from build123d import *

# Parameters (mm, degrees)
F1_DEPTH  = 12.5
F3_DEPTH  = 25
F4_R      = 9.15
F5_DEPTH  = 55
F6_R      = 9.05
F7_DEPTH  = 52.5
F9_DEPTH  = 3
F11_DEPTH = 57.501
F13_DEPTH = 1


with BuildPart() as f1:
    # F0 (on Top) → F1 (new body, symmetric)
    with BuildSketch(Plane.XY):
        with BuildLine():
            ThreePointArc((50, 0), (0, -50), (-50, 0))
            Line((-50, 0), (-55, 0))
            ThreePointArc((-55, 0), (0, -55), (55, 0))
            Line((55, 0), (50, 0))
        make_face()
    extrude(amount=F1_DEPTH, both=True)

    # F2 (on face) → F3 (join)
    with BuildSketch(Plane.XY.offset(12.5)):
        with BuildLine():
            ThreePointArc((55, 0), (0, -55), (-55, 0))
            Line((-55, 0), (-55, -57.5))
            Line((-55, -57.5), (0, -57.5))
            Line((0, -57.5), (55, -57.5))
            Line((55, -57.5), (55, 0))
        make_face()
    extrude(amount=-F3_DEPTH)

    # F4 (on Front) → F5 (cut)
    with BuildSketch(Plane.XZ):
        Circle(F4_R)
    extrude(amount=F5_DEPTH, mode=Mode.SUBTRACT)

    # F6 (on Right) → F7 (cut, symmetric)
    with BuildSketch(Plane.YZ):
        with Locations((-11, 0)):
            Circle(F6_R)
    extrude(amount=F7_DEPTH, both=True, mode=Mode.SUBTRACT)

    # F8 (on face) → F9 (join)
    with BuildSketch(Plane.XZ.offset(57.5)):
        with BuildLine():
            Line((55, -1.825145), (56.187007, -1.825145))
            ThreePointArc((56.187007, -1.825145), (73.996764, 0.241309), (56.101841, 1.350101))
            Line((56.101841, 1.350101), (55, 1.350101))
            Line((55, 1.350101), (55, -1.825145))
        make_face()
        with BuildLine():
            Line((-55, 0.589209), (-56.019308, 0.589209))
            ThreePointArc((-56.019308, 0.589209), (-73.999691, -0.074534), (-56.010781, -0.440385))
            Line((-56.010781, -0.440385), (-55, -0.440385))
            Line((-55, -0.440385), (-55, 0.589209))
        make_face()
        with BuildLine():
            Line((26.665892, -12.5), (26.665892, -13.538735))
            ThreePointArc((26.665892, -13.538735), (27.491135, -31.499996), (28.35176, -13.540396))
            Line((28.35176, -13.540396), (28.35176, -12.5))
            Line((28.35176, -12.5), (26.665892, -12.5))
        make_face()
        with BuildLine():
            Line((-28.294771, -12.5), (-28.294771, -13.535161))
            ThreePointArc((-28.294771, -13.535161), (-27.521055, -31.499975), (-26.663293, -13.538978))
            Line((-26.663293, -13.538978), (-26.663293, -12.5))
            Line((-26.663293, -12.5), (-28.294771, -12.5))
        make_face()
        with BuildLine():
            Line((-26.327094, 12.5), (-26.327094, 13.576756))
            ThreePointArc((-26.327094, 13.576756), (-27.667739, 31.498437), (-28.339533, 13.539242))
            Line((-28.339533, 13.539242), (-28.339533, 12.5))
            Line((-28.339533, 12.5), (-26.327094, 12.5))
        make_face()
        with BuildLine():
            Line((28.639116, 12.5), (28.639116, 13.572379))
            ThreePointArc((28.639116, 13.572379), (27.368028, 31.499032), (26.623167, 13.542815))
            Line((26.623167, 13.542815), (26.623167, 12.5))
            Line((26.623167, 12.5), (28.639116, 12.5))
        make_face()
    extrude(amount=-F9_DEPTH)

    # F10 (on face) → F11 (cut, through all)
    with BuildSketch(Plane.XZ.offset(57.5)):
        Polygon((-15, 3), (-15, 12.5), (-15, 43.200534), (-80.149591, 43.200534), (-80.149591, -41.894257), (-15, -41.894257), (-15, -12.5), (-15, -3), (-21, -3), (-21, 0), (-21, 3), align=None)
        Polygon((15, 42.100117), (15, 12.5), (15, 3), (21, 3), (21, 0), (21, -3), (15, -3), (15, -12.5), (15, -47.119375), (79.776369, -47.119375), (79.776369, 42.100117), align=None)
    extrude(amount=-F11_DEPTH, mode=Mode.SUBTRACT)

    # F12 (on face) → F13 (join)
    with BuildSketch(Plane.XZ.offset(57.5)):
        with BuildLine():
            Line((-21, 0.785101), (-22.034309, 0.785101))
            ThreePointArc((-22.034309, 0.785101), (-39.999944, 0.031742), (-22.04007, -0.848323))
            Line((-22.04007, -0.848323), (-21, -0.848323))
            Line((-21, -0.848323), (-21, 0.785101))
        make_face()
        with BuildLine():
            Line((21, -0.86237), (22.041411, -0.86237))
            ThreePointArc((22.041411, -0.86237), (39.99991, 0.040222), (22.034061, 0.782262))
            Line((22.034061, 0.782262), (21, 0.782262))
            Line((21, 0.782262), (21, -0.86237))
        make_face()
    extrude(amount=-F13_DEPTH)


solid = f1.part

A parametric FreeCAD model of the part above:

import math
import FreeCAD as App
import Part
import Sketcher

V = App.Vector
Q = App.Units.Quantity


def add_polygon(sketch, points):
    """Adds a closed chain of lines whose ends are joined by coincident constraints."""
    first, n = sketch.GeometryCount, len(points)
    for a, b in zip(points, points[1:] + points[:1]):
        sketch.addGeometry(Part.LineSegment(App.Vector(*a, 0), App.Vector(*b, 0)), False)
    for i in range(n):
        sketch.addConstraint(Sketcher.Constraint("Coincident", first + i, 2, first + (i + 1) % n, 1))

doc = App.newDocument("Part")
body = doc.addObject("PartDesign::Body", "Body")

sketch1 = doc.addObject("Sketcher::SketchObject", "Sketch")
body.addObject(sketch1)
sketch1.AttachmentSupport = (doc.XY_Plane, [""])
sketch1.MapMode = "FlatFace"
sketch1.addGeometry(Part.ArcOfCircle(Part.Circle(V(0, 0, 0), V(0, 0, 1), 50), math.radians(180), math.radians(360)), False)
sketch1.addGeometry(Part.LineSegment(V(-50, 0, 0), V(-55, 0, 0)), False)
sketch1.addGeometry(Part.ArcOfCircle(Part.Circle(V(0, 0, 0), V(0, 0, 1), 55), math.radians(180), math.radians(360)), False)
sketch1.addGeometry(Part.LineSegment(V(55, 0, 0), V(50, 0, 0)), False)
sketch1.addConstraint(Sketcher.Constraint("Coincident", 0, 1, 1, 1))
sketch1.addConstraint(Sketcher.Constraint("Coincident", 1, 2, 2, 1))
sketch1.addConstraint(Sketcher.Constraint("Coincident", 2, 2, 3, 1))
sketch1.addConstraint(Sketcher.Constraint("Coincident", 3, 2, 0, 2))
sketch1.addConstraint(Sketcher.Constraint("Horizontal", 1))
sketch1.addConstraint(Sketcher.Constraint("Horizontal", 3))
sketch1.addConstraint(Sketcher.Constraint("Coincident", 0, 3, -1, 1))
sketch1.addConstraint(Sketcher.Constraint("Coincident", 2, 3, -1, 1))
sketch1.addConstraint(Sketcher.Constraint("PointOnObject", 0, 1, -1))
sketch1.addConstraint(Sketcher.Constraint("PointOnObject", 2, 2, -1))
sketch1.addConstraint(Sketcher.Constraint("Radius", 0, Q("50 mm")))
sketch1.addConstraint(Sketcher.Constraint("Radius", 2, Q("55 mm")))
pad1 = doc.addObject("PartDesign::Pad", "Pad")
body.addObject(pad1)
pad1.Profile = sketch1
pad1.Length = 25
pad1.Midplane = True

sketch2 = doc.addObject("Sketcher::SketchObject", "Sketch001")
body.addObject(sketch2)
sketch2.AttachmentSupport = (doc.XY_Plane, [""])
sketch2.MapMode = "FlatFace"
sketch2.AttachmentOffset = App.Placement(V(0, 0, 12.5), App.Rotation())
sketch2.addGeometry(Part.ArcOfCircle(Part.Circle(V(0, 0, 0), V(0, 0, 1), 55), math.radians(180), math.radians(360)), False)
sketch2.addGeometry(Part.LineSegment(V(-55, 0, 0), V(-55, -58, 0)), False)
sketch2.addGeometry(Part.LineSegment(V(-55, -58, 0), V(55, -58, 0)), False)
sketch2.addGeometry(Part.LineSegment(V(55, -58, 0), V(55, 0, 0)), False)
sketch2.addConstraint(Sketcher.Constraint("Tangent", 0, 1, 1, 1))
sketch2.addConstraint(Sketcher.Constraint("Coincident", 1, 2, 2, 1))
sketch2.addConstraint(Sketcher.Constraint("Coincident", 2, 2, 3, 1))
sketch2.addConstraint(Sketcher.Constraint("Tangent", 3, 2, 0, 2))
sketch2.addConstraint(Sketcher.Constraint("Vertical", 1))
sketch2.addConstraint(Sketcher.Constraint("Horizontal", 2))
sketch2.addConstraint(Sketcher.Constraint("Vertical", 3))
sketch2.addConstraint(Sketcher.Constraint("Coincident", 0, 3, -1, 1))
sketch2.addConstraint(Sketcher.Constraint("Radius", 0, Q("55 mm")))
sketch2.addConstraint(Sketcher.Constraint("DistanceY", 1, 2, 1, 1, Q("57.5 mm")))
pad2 = doc.addObject("PartDesign::Pad", "Pad001")
body.addObject(pad2)
pad2.Profile = sketch2
pad2.Length = 25
pad2.Reversed = True

sketch3 = doc.addObject("Sketcher::SketchObject", "Sketch002")
body.addObject(sketch3)
sketch3.AttachmentSupport = (doc.XZ_Plane, [""])
sketch3.MapMode = "FlatFace"
sketch3.addGeometry(Part.Circle(V(0, 0, 0), V(0, 0, 1), 9), False)
sketch3.addConstraint(Sketcher.Constraint("Coincident", 0, 3, -1, 1))
sketch3.addConstraint(Sketcher.Constraint("Diameter", 0, Q("18.3 mm")))
pocket1 = doc.addObject("PartDesign::Pocket", "Pocket")
body.addObject(pocket1)
pocket1.Profile = sketch3
pocket1.Length = 55
pocket1.Reversed = True

sketch4 = doc.addObject("Sketcher::SketchObject", "Sketch003")
body.addObject(sketch4)
sketch4.AttachmentSupport = (doc.YZ_Plane, [""])
sketch4.MapMode = "FlatFace"
sketch4.addGeometry(Part.Circle(V(-11, 0, 0), V(0, 0, 1), 9), False)
sketch4.addConstraint(Sketcher.Constraint("PointOnObject", 0, 3, -1))
sketch4.addConstraint(Sketcher.Constraint("Diameter", 0, Q("18.1 mm")))
sketch4.addConstraint(Sketcher.Constraint("DistanceX", 0, 3, -1, 1, Q("11 mm")))
pocket2 = doc.addObject("PartDesign::Pocket", "Pocket001")
body.addObject(pocket2)
pocket2.Profile = sketch4
pocket2.Length = 105
pocket2.Midplane = True

sketch5 = doc.addObject("Sketcher::SketchObject", "Sketch004")
body.addObject(sketch5)
sketch5.AttachmentSupport = (doc.XZ_Plane, [""])
sketch5.MapMode = "FlatFace"
sketch5.AttachmentOffset = App.Placement(V(0, 0, 57.5), App.Rotation())
sketch5.addGeometry(Part.LineSegment(V(55, -1.8, 0), V(56.2, -1.8, 0)), False)
sketch5.addGeometry(Part.ArcOfCircle(Part.Circle(V(65, 0, 0), V(0, 0, 1), 9), math.radians(-168), math.radians(171)), False)
sketch5.addGeometry(Part.LineSegment(V(56.1, 1.4, 0), V(55, 1.4, 0)), False)
sketch5.addGeometry(Part.LineSegment(V(55, 1.4, 0), V(55, -1.8, 0)), False)
sketch5.addGeometry(Part.LineSegment(V(-55, 0.6, 0), V(-56, 0.6, 0)), False)
sketch5.addGeometry(Part.ArcOfCircle(Part.Circle(V(-65, 0, 0), V(0, 0, 1), 9), math.radians(4), math.radians(357)), False)
sketch5.addGeometry(Part.LineSegment(V(-56, -0.4, 0), V(-55, -0.4, 0)), False)
sketch5.addGeometry(Part.LineSegment(V(-55, -0.4, 0), V(-55, 0.6, 0)), False)
sketch5.addGeometry(Part.LineSegment(V(26.7, -12.5, 0), V(26.7, -13.5, 0)), False)
sketch5.addGeometry(Part.ArcOfCircle(Part.Circle(V(27.5, -22.5, 0), V(0, 0, 1), 9), math.radians(95), math.radians(445)), False)
sketch5.addGeometry(Part.LineSegment(V(28.4, -13.5, 0), V(28.4, -12.5, 0)), False)
sketch5.addGeometry(Part.LineSegment(V(28.4, -12.5, 0), V(26.7, -12.5, 0)), False)
sketch5.addGeometry(Part.LineSegment(V(-28.3, -12.5, 0), V(-28.3, -13.5, 0)), False)
sketch5.addGeometry(Part.ArcOfCircle(Part.Circle(V(-27.5, -22.5, 0), V(0, 0, 1), 9), math.radians(95), math.radians(445)), False)
sketch5.addGeometry(Part.LineSegment(V(-26.7, -13.5, 0), V(-26.7, -12.5, 0)), False)
sketch5.addGeometry(Part.LineSegment(V(-26.7, -12.5, 0), V(-28.3, -12.5, 0)), False)
sketch5.addGeometry(Part.LineSegment(V(-26.3, 12.5, 0), V(-26.3, 13.6, 0)), False)
sketch5.addGeometry(Part.ArcOfCircle(Part.Circle(V(-27.5, 22.5, 0), V(0, 0, 1), 9), math.radians(-83), math.radians(265)), False)
sketch5.addGeometry(Part.LineSegment(V(-28.3, 13.5, 0), V(-28.3, 12.5, 0)), False)
sketch5.addGeometry(Part.LineSegment(V(-28.3, 12.5, 0), V(-26.3, 12.5, 0)), False)
sketch5.addGeometry(Part.LineSegment(V(28.6, 12.5, 0), V(28.6, 13.6, 0)), False)
sketch5.addGeometry(Part.ArcOfCircle(Part.Circle(V(27.5, 22.5, 0), V(0, 0, 1), 9), math.radians(-83), math.radians(264)), False)
sketch5.addGeometry(Part.LineSegment(V(26.6, 13.5, 0), V(26.6, 12.5, 0)), False)
sketch5.addGeometry(Part.LineSegment(V(26.6, 12.5, 0), V(28.6, 12.5, 0)), False)
sketch5.addConstraint(Sketcher.Constraint("Coincident", 0, 2, 1, 1))
sketch5.addConstraint(Sketcher.Constraint("Coincident", 1, 2, 2, 1))
sketch5.addConstraint(Sketcher.Constraint("Coincident", 2, 2, 3, 1))
sketch5.addConstraint(Sketcher.Constraint("Coincident", 3, 2, 0, 1))
sketch5.addConstraint(Sketcher.Constraint("Coincident", 4, 2, 5, 1))
sketch5.addConstraint(Sketcher.Constraint("Coincident", 5, 2, 6, 1))
sketch5.addConstraint(Sketcher.Constraint("Coincident", 6, 2, 7, 1))
sketch5.addConstraint(Sketcher.Constraint("Coincident", 7, 2, 4, 1))
sketch5.addConstraint(Sketcher.Constraint("Coincident", 8, 2, 9, 1))
sketch5.addConstraint(Sketcher.Constraint("Coincident", 9, 2, 10, 1))
sketch5.addConstraint(Sketcher.Constraint("Coincident", 10, 2, 11, 1))
sketch5.addConstraint(Sketcher.Constraint("Coincident", 11, 2, 8, 1))
sketch5.addConstraint(Sketcher.Constraint("Coincident", 12, 2, 13, 1))
sketch5.addConstraint(Sketcher.Constraint("Coincident", 13, 2, 14, 1))
sketch5.addConstraint(Sketcher.Constraint("Coincident", 14, 2, 15, 1))
sketch5.addConstraint(Sketcher.Constraint("Coincident", 15, 2, 12, 1))
sketch5.addConstraint(Sketcher.Constraint("Coincident", 16, 2, 17, 1))
sketch5.addConstraint(Sketcher.Constraint("Coincident", 17, 2, 18, 1))
sketch5.addConstraint(Sketcher.Constraint("Coincident", 18, 2, 19, 1))
sketch5.addConstraint(Sketcher.Constraint("Coincident", 19, 2, 16, 1))
sketch5.addConstraint(Sketcher.Constraint("Coincident", 20, 2, 21, 1))
sketch5.addConstraint(Sketcher.Constraint("Coincident", 21, 2, 22, 1))
sketch5.addConstraint(Sketcher.Constraint("Coincident", 22, 2, 23, 1))
sketch5.addConstraint(Sketcher.Constraint("Coincident", 23, 2, 20, 1))
sketch5.addConstraint(Sketcher.Constraint("Horizontal", 0))
sketch5.addConstraint(Sketcher.Constraint("Horizontal", 2))
sketch5.addConstraint(Sketcher.Constraint("Vertical", 3))
sketch5.addConstraint(Sketcher.Constraint("Horizontal", 4))
sketch5.addConstraint(Sketcher.Constraint("Horizontal", 6))
sketch5.addConstraint(Sketcher.Constraint("Vertical", 7))
sketch5.addConstraint(Sketcher.Constraint("Vertical", 8))
sketch5.addConstraint(Sketcher.Constraint("Vertical", 10))
sketch5.addConstraint(Sketcher.Constraint("Horizontal", 11))
sketch5.addConstraint(Sketcher.Constraint("Vertical", 12))
sketch5.addConstraint(Sketcher.Constraint("Vertical", 14))
sketch5.addConstraint(Sketcher.Constraint("Horizontal", 15))
sketch5.addConstraint(Sketcher.Constraint("Vertical", 16))
sketch5.addConstraint(Sketcher.Constraint("Vertical", 18))
sketch5.addConstraint(Sketcher.Constraint("Horizontal", 19))
sketch5.addConstraint(Sketcher.Constraint("Vertical", 20))
sketch5.addConstraint(Sketcher.Constraint("Vertical", 22))
sketch5.addConstraint(Sketcher.Constraint("Horizontal", 23))
sketch5.addConstraint(Sketcher.Constraint("Equal", 1, 5))
sketch5.addConstraint(Sketcher.Constraint("Equal", 5, 9))
sketch5.addConstraint(Sketcher.Constraint("Equal", 9, 13))
sketch5.addConstraint(Sketcher.Constraint("Equal", 13, 17))
sketch5.addConstraint(Sketcher.Constraint("Equal", 17, 21))
sketch5.addConstraint(Sketcher.Constraint("Symmetric", 1, 3, 5, 3, -1, 1))
sketch5.addConstraint(Sketcher.Constraint("Symmetric", 9, 3, 17, 3, -1, 1))
sketch5.addConstraint(Sketcher.Constraint("Symmetric", 13, 3, 21, 3, -1, 1))
sketch5.addConstraint(Sketcher.Constraint("Symmetric", 9, 3, 13, 3, -2))
sketch5.addConstraint(Sketcher.Constraint("PointOnObject", 1, 3, -1))
sketch5.addConstraint(Sketcher.Constraint("Horizontal", 11, 2, 14, 2))
sketch5.addConstraint(Sketcher.Constraint("Horizontal", 19, 2, 22, 2))
sketch5.addConstraint(Sketcher.Constraint("Radius", 1, Q("9 mm")))
sketch5.addConstraint(Sketcher.Constraint("DistanceX", -1, 1, 1, 3, Q("65 mm")))
sketch5.addConstraint(Sketcher.Constraint("DistanceX", -1, 1, 2, 2, Q("55 mm")))
sketch5.addConstraint(Sketcher.Constraint("DistanceX", 6, 2, -1, 1, Q("55 mm")))
sketch5.addConstraint(Sketcher.Constraint("DistanceX", 13, 3, 9, 3, Q("54.999999 mm")))
sketch5.addConstraint(Sketcher.Constraint("DistanceY", 13, 3, 17, 3, Q("45 mm")))
sketch5.addConstraint(Sketcher.Constraint("DistanceY", 9, 3, 10, 2, Q("10 mm")))
sketch5.addConstraint(Sketcher.Constraint("DistanceY", 18, 2, 17, 3, Q("10 mm")))
sketch5.addConstraint(Sketcher.Constraint("DistanceX", 2, 2, 2, 1, Q("1.101841 mm")))
sketch5.addConstraint(Sketcher.Constraint("DistanceX", 4, 2, 4, 1, Q("1.019308 mm")))
sketch5.addConstraint(Sketcher.Constraint("DistanceX", 6, 1, 6, 2, Q("1.010781 mm")))
sketch5.addConstraint(Sketcher.Constraint("DistanceX", 15, 2, 15, 1, Q("1.631478 mm")))
sketch5.addConstraint(Sketcher.Constraint("DistanceX", 19, 1, 19, 2, Q("2.012439 mm")))
sketch5.addConstraint(Sketcher.Constraint("DistanceX", 23, 1, 23, 2, Q("2.015949 mm")))
sketch5.addConstraint(Sketcher.Constraint("DistanceY", 12, 2, 12, 1, Q("1.035161 mm")))
sketch5.addConstraint(Sketcher.Constraint("DistanceY", 18, 2, 18, 1, Q("1.039242 mm")))
sketch5.addConstraint(Sketcher.Constraint("DistanceY", 20, 1, 20, 2, Q("1.072379 mm")))
sketch5.addConstraint(Sketcher.Constraint("DistanceX", 0, 1, 0, 2, Q("1.187007 mm")))
sketch5.addConstraint(Sketcher.Constraint("DistanceX", 11, 2, 11, 1, Q("1.685868 mm")))
sketch5.addConstraint(Sketcher.Constraint("DistanceY", 8, 2, 8, 1, Q("1.038735 mm")))
pad3 = doc.addObject("PartDesign::Pad", "Pad002")
body.addObject(pad3)
pad3.Profile = sketch5
pad3.Length = 3
pad3.Reversed = True

sketch6 = doc.addObject("Sketcher::SketchObject", "Sketch005")
body.addObject(sketch6)
sketch6.AttachmentSupport = (doc.XZ_Plane, [""])
sketch6.MapMode = "FlatFace"
sketch6.AttachmentOffset = App.Placement(V(0, 0, 57.5), App.Rotation())
add_polygon(sketch6, [(-15, 3), (-15, 43), (-80, 43), (-80, -42), (-15, -42), (-15, -3), (-21, -3), (-21, 3)])
add_polygon(sketch6, [(15, 42), (15, 3), (21, 3), (21, -3), (15, -3), (15, -47), (80, -47), (80, 42)])
sketch6.addConstraint(Sketcher.Constraint("Vertical", 0))
sketch6.addConstraint(Sketcher.Constraint("Horizontal", 1))
sketch6.addConstraint(Sketcher.Constraint("Vertical", 2))
sketch6.addConstraint(Sketcher.Constraint("Horizontal", 3))
sketch6.addConstraint(Sketcher.Constraint("Vertical", 4))
sketch6.addConstraint(Sketcher.Constraint("Horizontal", 5))
sketch6.addConstraint(Sketcher.Constraint("Vertical", 6))
sketch6.addConstraint(Sketcher.Constraint("Horizontal", 7))
sketch6.addConstraint(Sketcher.Constraint("Vertical", 8))
sketch6.addConstraint(Sketcher.Constraint("Horizontal", 9))
sketch6.addConstraint(Sketcher.Constraint("Vertical", 10))
sketch6.addConstraint(Sketcher.Constraint("Horizontal", 11))
sketch6.addConstraint(Sketcher.Constraint("Vertical", 12))
sketch6.addConstraint(Sketcher.Constraint("Horizontal", 13))
sketch6.addConstraint(Sketcher.Constraint("Vertical", 14))
sketch6.addConstraint(Sketcher.Constraint("Horizontal", 15))
sketch6.addConstraint(Sketcher.Constraint("Symmetric", 4, 2, 8, 2, -1, 1))
sketch6.addConstraint(Sketcher.Constraint("Symmetric", 6, 2, 10, 2, -1, 1))
sketch6.addConstraint(Sketcher.Constraint("Symmetric", 7, 2, 8, 2, -2))
sketch6.addConstraint(Sketcher.Constraint("Vertical", 8, 2, 11, 2))
sketch6.addConstraint(Sketcher.Constraint("Equal", 11, 6))
sketch6.addConstraint(Sketcher.Constraint("DistanceX", 5, 2, 5, 1, Q("6 mm")))
sketch6.addConstraint(Sketcher.Constraint("DistanceX", 0, 2, -1, 1, Q("15 mm")))
sketch6.addConstraint(Sketcher.Constraint("DistanceX", 1, 2, 1, 1, Q("65.149591 mm")))
sketch6.addConstraint(Sketcher.Constraint("DistanceX", 13, 1, 13, 2, Q("64.776369 mm")))
sketch6.addConstraint(Sketcher.Constraint("DistanceY", 2, 2, 2, 1, Q("85.094791 mm")))
sketch6.addConstraint(Sketcher.Constraint("DistanceY", 0, 1, 0, 2, Q("40.200534 mm")))
sketch6.addConstraint(Sketcher.Constraint("DistanceY", 8, 2, 8, 1, Q("39.100117 mm")))
sketch6.addConstraint(Sketcher.Constraint("DistanceY", 12, 2, 12, 1, Q("44.119375 mm")))
pocket3 = doc.addObject("PartDesign::Pocket", "Pocket002")
body.addObject(pocket3)
pocket3.Profile = sketch6
pocket3.Type = "ThroughAll"

sketch7 = doc.addObject("Sketcher::SketchObject", "Sketch006")
body.addObject(sketch7)
sketch7.AttachmentSupport = (doc.XZ_Plane, [""])
sketch7.MapMode = "FlatFace"
sketch7.AttachmentOffset = App.Placement(V(0, 0, 57.5), App.Rotation())
sketch7.addGeometry(Part.LineSegment(V(-21, 0.8, 0), V(-22, 0.8, 0)), False)
sketch7.addGeometry(Part.ArcOfCircle(Part.Circle(V(-31, 0, 0), V(0, 0, 1), 9), math.radians(5), math.radians(355)), False)
sketch7.addGeometry(Part.LineSegment(V(-22, -0.8, 0), V(-21, -0.8, 0)), False)
sketch7.addGeometry(Part.LineSegment(V(-21, -0.8, 0), V(-21, 0.8, 0)), False)
sketch7.addGeometry(Part.LineSegment(V(21, -0.9, 0), V(22, -0.9, 0)), False)
sketch7.addGeometry(Part.ArcOfCircle(Part.Circle(V(31, 0, 0), V(0, 0, 1), 9), math.radians(-175), math.radians(175)), False)
sketch7.addGeometry(Part.LineSegment(V(22, 0.8, 0), V(21, 0.8, 0)), False)
sketch7.addGeometry(Part.LineSegment(V(21, 0.8, 0), V(21, -0.9, 0)), False)
sketch7.addConstraint(Sketcher.Constraint("Coincident", 0, 2, 1, 1))
sketch7.addConstraint(Sketcher.Constraint("Coincident", 1, 2, 2, 1))
sketch7.addConstraint(Sketcher.Constraint("Coincident", 2, 2, 3, 1))
sketch7.addConstraint(Sketcher.Constraint("Coincident", 3, 2, 0, 1))
sketch7.addConstraint(Sketcher.Constraint("Coincident", 4, 2, 5, 1))
sketch7.addConstraint(Sketcher.Constraint("Coincident", 5, 2, 6, 1))
sketch7.addConstraint(Sketcher.Constraint("Coincident", 6, 2, 7, 1))
sketch7.addConstraint(Sketcher.Constraint("Coincident", 7, 2, 4, 1))
sketch7.addConstraint(Sketcher.Constraint("Horizontal", 0))
sketch7.addConstraint(Sketcher.Constraint("Horizontal", 2))
sketch7.addConstraint(Sketcher.Constraint("Vertical", 3))
sketch7.addConstraint(Sketcher.Constraint("Horizontal", 4))
sketch7.addConstraint(Sketcher.Constraint("Horizontal", 6))
sketch7.addConstraint(Sketcher.Constraint("Vertical", 7))
sketch7.addConstraint(Sketcher.Constraint("Equal", 1, 5))
sketch7.addConstraint(Sketcher.Constraint("Symmetric", 1, 3, 5, 3, -1, 1))
sketch7.addConstraint(Sketcher.Constraint("PointOnObject", 1, 3, -1))
sketch7.addConstraint(Sketcher.Constraint("Radius", 1, Q("9 mm")))
sketch7.addConstraint(Sketcher.Constraint("DistanceX", 1, 3, -1, 1, Q("31 mm")))
sketch7.addConstraint(Sketcher.Constraint("DistanceX", 2, 2, -1, 1, Q("21 mm")))
sketch7.addConstraint(Sketcher.Constraint("DistanceX", -1, 1, 6, 2, Q("21 mm")))
sketch7.addConstraint(Sketcher.Constraint("DistanceX", 0, 2, 0, 1, Q("1.034309 mm")))
sketch7.addConstraint(Sketcher.Constraint("DistanceX", 2, 1, 2, 2, Q("1.04007 mm")))
sketch7.addConstraint(Sketcher.Constraint("DistanceX", 4, 1, 4, 2, Q("1.041411 mm")))
sketch7.addConstraint(Sketcher.Constraint("DistanceX", 6, 2, 6, 1, Q("1.034061 mm")))
pad4 = doc.addObject("PartDesign::Pad", "Pad003")
body.addObject(pad4)
pad4.Profile = sketch7
pad4.Length = 1
pad4.Reversed = True

doc.recompute()
